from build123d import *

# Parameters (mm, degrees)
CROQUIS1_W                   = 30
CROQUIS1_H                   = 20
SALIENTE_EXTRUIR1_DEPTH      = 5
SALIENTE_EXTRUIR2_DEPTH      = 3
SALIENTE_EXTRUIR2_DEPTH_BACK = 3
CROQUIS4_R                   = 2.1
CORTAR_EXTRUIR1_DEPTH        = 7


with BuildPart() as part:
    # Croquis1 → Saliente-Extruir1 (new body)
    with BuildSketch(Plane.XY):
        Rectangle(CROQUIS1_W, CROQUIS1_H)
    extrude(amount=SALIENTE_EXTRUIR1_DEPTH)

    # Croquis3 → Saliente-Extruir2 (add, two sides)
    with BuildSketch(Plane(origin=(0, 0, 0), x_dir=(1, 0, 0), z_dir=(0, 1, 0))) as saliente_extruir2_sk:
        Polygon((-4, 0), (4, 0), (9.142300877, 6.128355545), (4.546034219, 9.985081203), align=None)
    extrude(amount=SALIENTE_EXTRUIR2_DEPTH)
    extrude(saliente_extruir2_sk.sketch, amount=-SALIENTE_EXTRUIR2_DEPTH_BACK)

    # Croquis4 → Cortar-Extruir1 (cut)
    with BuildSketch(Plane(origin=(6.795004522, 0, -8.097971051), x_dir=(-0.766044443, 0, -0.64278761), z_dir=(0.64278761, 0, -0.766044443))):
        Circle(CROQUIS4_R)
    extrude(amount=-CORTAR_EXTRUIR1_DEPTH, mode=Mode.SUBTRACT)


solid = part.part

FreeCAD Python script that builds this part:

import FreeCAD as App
import Part
import Sketcher
from FreeCAD import Vector
Q = App.Units.Quantity

doc = App.newDocument("Part")
body = doc.addObject("PartDesign::Body", "Body")

sketch1 = doc.addObject("Sketcher::SketchObject", "Sketch")
body.addObject(sketch1)
sketch1.AttachmentSupport = (doc.XY_Plane, [""])
sketch1.MapMode = "FlatFace"
sketch1.addGeometry([
    Part.LineSegment(Vector(-15, 10, 0), Vector(-15, -10, 0)),
    Part.LineSegment(Vector(-15, -10, 0), Vector(15, -10, 0)),
    Part.LineSegment(Vector(15, -10, 0), Vector(15, 10, 0)),
    Part.LineSegment(Vector(15, 10, 0), Vector(-15, 10, 0)),
], False)
sketch1.addConstraint([
    Sketcher.Constraint("Coincident", 0, 2, 1, 1),
    Sketcher.Constraint("Coincident", 1, 2, 2, 1),
    Sketcher.Constraint("Coincident", 2, 2, 3, 1),
    Sketcher.Constraint("Coincident", 3, 2, 0, 1),
    Sketcher.Constraint("Vertical", 0),
    Sketcher.Constraint("Horizontal", 1),
    Sketcher.Constraint("Vertical", 2),
    Sketcher.Constraint("Horizontal", 3),
    Sketcher.Constraint("Symmetric", 0, 2, 2, 2, -1, 1),
    Sketcher.Constraint("DistanceX", 1, 1, 1, 2, 30.0),
    Sketcher.Constraint("DistanceY", 0, 2, 0, 1, 20.0),
])
pad1 = doc.addObject("PartDesign::Pad", "Pad")
body.addObject(pad1)
pad1.Profile = sketch1
pad1.Length = 5

sketch2 = doc.addObject("Sketcher::SketchObject", "Sketch001")
body.addObject(sketch2)
sketch2.AttachmentSupport = (doc.XZ_Plane, [""])
sketch2.MapMode = "FlatFace"
sketch2.addGeometry([
    Part.LineSegment(Vector(-4, 0, 0), Vector(4, 0, 0)),
    Part.LineSegment(Vector(4, 0, 0), Vector(9.142301, -6.128356, 0)),
    Part.LineSegment(Vector(9.142301, -6.128356, 0), Vector(4.546034, -9.985081, 0)),
    Part.LineSegment(Vector(4.546034, -9.985081, 0), Vector(-4, 0, 0)),
], False)
sketch2.addConstraint([
    Sketcher.Constraint("Coincident", 0, 2, 1, 1),
    Sketcher.Constraint("Coincident", 1, 2, 2, 1),
    Sketcher.Constraint("Coincident", 2, 2, 3, 1),
    Sketcher.Constraint("Coincident", 3, 2, 0, 1),
    Sketcher.Constraint("Horizontal", 0),
    Sketcher.Constraint("Symmetric", 0, 2, 3, 2, -1, 1),
    Sketcher.Constraint("Perpendicular", 1, 2),
    Sketcher.Constraint("DistanceX", 0, 1, 0, 2, 8.0),
    Sketcher.Constraint("Angle", 1, Q("-50 deg")),
    Sketcher.Constraint("Distance", 1, 8.0),
    Sketcher.Constraint("Distance", 2, 6.0),
])
pad2 = doc.addObject("PartDesign::Pad", "Pad001")
body.addObject(pad2)
pad2.Profile = sketch2
pad2.Type = "TwoLengths"
pad2.Length = 3
pad2.Length2 = 3
pad2.Reversed = True

sketch3 = doc.addObject("Sketcher::SketchObject", "Sketch002")
body.addObject(sketch3)
sketch3.Placement = App.Placement(Vector(6.795005, 0, -8.097971), App.Rotation(Vector(-0.766044443, 0, -0.64278761), Vector(0, 1, 0), Vector(0.64278761, 0, -0.766044443), "ZXY"))
sketch3.addGeometry(Part.Circle(Vector(0, 0, 0), Vector(0, 0, 1), 2.1), False)
sketch3.addConstraint([
    Sketcher.Constraint("Coincident", 0, 3, -1, 1),
    Sketcher.Constraint("Diameter", 0, 4.2),
])
pocket1 = doc.addObject("PartDesign::Pocket", "Pocket")
body.addObject(pocket1)
pocket1.Profile = sketch3
pocket1.Length = 7

doc.recompute()
